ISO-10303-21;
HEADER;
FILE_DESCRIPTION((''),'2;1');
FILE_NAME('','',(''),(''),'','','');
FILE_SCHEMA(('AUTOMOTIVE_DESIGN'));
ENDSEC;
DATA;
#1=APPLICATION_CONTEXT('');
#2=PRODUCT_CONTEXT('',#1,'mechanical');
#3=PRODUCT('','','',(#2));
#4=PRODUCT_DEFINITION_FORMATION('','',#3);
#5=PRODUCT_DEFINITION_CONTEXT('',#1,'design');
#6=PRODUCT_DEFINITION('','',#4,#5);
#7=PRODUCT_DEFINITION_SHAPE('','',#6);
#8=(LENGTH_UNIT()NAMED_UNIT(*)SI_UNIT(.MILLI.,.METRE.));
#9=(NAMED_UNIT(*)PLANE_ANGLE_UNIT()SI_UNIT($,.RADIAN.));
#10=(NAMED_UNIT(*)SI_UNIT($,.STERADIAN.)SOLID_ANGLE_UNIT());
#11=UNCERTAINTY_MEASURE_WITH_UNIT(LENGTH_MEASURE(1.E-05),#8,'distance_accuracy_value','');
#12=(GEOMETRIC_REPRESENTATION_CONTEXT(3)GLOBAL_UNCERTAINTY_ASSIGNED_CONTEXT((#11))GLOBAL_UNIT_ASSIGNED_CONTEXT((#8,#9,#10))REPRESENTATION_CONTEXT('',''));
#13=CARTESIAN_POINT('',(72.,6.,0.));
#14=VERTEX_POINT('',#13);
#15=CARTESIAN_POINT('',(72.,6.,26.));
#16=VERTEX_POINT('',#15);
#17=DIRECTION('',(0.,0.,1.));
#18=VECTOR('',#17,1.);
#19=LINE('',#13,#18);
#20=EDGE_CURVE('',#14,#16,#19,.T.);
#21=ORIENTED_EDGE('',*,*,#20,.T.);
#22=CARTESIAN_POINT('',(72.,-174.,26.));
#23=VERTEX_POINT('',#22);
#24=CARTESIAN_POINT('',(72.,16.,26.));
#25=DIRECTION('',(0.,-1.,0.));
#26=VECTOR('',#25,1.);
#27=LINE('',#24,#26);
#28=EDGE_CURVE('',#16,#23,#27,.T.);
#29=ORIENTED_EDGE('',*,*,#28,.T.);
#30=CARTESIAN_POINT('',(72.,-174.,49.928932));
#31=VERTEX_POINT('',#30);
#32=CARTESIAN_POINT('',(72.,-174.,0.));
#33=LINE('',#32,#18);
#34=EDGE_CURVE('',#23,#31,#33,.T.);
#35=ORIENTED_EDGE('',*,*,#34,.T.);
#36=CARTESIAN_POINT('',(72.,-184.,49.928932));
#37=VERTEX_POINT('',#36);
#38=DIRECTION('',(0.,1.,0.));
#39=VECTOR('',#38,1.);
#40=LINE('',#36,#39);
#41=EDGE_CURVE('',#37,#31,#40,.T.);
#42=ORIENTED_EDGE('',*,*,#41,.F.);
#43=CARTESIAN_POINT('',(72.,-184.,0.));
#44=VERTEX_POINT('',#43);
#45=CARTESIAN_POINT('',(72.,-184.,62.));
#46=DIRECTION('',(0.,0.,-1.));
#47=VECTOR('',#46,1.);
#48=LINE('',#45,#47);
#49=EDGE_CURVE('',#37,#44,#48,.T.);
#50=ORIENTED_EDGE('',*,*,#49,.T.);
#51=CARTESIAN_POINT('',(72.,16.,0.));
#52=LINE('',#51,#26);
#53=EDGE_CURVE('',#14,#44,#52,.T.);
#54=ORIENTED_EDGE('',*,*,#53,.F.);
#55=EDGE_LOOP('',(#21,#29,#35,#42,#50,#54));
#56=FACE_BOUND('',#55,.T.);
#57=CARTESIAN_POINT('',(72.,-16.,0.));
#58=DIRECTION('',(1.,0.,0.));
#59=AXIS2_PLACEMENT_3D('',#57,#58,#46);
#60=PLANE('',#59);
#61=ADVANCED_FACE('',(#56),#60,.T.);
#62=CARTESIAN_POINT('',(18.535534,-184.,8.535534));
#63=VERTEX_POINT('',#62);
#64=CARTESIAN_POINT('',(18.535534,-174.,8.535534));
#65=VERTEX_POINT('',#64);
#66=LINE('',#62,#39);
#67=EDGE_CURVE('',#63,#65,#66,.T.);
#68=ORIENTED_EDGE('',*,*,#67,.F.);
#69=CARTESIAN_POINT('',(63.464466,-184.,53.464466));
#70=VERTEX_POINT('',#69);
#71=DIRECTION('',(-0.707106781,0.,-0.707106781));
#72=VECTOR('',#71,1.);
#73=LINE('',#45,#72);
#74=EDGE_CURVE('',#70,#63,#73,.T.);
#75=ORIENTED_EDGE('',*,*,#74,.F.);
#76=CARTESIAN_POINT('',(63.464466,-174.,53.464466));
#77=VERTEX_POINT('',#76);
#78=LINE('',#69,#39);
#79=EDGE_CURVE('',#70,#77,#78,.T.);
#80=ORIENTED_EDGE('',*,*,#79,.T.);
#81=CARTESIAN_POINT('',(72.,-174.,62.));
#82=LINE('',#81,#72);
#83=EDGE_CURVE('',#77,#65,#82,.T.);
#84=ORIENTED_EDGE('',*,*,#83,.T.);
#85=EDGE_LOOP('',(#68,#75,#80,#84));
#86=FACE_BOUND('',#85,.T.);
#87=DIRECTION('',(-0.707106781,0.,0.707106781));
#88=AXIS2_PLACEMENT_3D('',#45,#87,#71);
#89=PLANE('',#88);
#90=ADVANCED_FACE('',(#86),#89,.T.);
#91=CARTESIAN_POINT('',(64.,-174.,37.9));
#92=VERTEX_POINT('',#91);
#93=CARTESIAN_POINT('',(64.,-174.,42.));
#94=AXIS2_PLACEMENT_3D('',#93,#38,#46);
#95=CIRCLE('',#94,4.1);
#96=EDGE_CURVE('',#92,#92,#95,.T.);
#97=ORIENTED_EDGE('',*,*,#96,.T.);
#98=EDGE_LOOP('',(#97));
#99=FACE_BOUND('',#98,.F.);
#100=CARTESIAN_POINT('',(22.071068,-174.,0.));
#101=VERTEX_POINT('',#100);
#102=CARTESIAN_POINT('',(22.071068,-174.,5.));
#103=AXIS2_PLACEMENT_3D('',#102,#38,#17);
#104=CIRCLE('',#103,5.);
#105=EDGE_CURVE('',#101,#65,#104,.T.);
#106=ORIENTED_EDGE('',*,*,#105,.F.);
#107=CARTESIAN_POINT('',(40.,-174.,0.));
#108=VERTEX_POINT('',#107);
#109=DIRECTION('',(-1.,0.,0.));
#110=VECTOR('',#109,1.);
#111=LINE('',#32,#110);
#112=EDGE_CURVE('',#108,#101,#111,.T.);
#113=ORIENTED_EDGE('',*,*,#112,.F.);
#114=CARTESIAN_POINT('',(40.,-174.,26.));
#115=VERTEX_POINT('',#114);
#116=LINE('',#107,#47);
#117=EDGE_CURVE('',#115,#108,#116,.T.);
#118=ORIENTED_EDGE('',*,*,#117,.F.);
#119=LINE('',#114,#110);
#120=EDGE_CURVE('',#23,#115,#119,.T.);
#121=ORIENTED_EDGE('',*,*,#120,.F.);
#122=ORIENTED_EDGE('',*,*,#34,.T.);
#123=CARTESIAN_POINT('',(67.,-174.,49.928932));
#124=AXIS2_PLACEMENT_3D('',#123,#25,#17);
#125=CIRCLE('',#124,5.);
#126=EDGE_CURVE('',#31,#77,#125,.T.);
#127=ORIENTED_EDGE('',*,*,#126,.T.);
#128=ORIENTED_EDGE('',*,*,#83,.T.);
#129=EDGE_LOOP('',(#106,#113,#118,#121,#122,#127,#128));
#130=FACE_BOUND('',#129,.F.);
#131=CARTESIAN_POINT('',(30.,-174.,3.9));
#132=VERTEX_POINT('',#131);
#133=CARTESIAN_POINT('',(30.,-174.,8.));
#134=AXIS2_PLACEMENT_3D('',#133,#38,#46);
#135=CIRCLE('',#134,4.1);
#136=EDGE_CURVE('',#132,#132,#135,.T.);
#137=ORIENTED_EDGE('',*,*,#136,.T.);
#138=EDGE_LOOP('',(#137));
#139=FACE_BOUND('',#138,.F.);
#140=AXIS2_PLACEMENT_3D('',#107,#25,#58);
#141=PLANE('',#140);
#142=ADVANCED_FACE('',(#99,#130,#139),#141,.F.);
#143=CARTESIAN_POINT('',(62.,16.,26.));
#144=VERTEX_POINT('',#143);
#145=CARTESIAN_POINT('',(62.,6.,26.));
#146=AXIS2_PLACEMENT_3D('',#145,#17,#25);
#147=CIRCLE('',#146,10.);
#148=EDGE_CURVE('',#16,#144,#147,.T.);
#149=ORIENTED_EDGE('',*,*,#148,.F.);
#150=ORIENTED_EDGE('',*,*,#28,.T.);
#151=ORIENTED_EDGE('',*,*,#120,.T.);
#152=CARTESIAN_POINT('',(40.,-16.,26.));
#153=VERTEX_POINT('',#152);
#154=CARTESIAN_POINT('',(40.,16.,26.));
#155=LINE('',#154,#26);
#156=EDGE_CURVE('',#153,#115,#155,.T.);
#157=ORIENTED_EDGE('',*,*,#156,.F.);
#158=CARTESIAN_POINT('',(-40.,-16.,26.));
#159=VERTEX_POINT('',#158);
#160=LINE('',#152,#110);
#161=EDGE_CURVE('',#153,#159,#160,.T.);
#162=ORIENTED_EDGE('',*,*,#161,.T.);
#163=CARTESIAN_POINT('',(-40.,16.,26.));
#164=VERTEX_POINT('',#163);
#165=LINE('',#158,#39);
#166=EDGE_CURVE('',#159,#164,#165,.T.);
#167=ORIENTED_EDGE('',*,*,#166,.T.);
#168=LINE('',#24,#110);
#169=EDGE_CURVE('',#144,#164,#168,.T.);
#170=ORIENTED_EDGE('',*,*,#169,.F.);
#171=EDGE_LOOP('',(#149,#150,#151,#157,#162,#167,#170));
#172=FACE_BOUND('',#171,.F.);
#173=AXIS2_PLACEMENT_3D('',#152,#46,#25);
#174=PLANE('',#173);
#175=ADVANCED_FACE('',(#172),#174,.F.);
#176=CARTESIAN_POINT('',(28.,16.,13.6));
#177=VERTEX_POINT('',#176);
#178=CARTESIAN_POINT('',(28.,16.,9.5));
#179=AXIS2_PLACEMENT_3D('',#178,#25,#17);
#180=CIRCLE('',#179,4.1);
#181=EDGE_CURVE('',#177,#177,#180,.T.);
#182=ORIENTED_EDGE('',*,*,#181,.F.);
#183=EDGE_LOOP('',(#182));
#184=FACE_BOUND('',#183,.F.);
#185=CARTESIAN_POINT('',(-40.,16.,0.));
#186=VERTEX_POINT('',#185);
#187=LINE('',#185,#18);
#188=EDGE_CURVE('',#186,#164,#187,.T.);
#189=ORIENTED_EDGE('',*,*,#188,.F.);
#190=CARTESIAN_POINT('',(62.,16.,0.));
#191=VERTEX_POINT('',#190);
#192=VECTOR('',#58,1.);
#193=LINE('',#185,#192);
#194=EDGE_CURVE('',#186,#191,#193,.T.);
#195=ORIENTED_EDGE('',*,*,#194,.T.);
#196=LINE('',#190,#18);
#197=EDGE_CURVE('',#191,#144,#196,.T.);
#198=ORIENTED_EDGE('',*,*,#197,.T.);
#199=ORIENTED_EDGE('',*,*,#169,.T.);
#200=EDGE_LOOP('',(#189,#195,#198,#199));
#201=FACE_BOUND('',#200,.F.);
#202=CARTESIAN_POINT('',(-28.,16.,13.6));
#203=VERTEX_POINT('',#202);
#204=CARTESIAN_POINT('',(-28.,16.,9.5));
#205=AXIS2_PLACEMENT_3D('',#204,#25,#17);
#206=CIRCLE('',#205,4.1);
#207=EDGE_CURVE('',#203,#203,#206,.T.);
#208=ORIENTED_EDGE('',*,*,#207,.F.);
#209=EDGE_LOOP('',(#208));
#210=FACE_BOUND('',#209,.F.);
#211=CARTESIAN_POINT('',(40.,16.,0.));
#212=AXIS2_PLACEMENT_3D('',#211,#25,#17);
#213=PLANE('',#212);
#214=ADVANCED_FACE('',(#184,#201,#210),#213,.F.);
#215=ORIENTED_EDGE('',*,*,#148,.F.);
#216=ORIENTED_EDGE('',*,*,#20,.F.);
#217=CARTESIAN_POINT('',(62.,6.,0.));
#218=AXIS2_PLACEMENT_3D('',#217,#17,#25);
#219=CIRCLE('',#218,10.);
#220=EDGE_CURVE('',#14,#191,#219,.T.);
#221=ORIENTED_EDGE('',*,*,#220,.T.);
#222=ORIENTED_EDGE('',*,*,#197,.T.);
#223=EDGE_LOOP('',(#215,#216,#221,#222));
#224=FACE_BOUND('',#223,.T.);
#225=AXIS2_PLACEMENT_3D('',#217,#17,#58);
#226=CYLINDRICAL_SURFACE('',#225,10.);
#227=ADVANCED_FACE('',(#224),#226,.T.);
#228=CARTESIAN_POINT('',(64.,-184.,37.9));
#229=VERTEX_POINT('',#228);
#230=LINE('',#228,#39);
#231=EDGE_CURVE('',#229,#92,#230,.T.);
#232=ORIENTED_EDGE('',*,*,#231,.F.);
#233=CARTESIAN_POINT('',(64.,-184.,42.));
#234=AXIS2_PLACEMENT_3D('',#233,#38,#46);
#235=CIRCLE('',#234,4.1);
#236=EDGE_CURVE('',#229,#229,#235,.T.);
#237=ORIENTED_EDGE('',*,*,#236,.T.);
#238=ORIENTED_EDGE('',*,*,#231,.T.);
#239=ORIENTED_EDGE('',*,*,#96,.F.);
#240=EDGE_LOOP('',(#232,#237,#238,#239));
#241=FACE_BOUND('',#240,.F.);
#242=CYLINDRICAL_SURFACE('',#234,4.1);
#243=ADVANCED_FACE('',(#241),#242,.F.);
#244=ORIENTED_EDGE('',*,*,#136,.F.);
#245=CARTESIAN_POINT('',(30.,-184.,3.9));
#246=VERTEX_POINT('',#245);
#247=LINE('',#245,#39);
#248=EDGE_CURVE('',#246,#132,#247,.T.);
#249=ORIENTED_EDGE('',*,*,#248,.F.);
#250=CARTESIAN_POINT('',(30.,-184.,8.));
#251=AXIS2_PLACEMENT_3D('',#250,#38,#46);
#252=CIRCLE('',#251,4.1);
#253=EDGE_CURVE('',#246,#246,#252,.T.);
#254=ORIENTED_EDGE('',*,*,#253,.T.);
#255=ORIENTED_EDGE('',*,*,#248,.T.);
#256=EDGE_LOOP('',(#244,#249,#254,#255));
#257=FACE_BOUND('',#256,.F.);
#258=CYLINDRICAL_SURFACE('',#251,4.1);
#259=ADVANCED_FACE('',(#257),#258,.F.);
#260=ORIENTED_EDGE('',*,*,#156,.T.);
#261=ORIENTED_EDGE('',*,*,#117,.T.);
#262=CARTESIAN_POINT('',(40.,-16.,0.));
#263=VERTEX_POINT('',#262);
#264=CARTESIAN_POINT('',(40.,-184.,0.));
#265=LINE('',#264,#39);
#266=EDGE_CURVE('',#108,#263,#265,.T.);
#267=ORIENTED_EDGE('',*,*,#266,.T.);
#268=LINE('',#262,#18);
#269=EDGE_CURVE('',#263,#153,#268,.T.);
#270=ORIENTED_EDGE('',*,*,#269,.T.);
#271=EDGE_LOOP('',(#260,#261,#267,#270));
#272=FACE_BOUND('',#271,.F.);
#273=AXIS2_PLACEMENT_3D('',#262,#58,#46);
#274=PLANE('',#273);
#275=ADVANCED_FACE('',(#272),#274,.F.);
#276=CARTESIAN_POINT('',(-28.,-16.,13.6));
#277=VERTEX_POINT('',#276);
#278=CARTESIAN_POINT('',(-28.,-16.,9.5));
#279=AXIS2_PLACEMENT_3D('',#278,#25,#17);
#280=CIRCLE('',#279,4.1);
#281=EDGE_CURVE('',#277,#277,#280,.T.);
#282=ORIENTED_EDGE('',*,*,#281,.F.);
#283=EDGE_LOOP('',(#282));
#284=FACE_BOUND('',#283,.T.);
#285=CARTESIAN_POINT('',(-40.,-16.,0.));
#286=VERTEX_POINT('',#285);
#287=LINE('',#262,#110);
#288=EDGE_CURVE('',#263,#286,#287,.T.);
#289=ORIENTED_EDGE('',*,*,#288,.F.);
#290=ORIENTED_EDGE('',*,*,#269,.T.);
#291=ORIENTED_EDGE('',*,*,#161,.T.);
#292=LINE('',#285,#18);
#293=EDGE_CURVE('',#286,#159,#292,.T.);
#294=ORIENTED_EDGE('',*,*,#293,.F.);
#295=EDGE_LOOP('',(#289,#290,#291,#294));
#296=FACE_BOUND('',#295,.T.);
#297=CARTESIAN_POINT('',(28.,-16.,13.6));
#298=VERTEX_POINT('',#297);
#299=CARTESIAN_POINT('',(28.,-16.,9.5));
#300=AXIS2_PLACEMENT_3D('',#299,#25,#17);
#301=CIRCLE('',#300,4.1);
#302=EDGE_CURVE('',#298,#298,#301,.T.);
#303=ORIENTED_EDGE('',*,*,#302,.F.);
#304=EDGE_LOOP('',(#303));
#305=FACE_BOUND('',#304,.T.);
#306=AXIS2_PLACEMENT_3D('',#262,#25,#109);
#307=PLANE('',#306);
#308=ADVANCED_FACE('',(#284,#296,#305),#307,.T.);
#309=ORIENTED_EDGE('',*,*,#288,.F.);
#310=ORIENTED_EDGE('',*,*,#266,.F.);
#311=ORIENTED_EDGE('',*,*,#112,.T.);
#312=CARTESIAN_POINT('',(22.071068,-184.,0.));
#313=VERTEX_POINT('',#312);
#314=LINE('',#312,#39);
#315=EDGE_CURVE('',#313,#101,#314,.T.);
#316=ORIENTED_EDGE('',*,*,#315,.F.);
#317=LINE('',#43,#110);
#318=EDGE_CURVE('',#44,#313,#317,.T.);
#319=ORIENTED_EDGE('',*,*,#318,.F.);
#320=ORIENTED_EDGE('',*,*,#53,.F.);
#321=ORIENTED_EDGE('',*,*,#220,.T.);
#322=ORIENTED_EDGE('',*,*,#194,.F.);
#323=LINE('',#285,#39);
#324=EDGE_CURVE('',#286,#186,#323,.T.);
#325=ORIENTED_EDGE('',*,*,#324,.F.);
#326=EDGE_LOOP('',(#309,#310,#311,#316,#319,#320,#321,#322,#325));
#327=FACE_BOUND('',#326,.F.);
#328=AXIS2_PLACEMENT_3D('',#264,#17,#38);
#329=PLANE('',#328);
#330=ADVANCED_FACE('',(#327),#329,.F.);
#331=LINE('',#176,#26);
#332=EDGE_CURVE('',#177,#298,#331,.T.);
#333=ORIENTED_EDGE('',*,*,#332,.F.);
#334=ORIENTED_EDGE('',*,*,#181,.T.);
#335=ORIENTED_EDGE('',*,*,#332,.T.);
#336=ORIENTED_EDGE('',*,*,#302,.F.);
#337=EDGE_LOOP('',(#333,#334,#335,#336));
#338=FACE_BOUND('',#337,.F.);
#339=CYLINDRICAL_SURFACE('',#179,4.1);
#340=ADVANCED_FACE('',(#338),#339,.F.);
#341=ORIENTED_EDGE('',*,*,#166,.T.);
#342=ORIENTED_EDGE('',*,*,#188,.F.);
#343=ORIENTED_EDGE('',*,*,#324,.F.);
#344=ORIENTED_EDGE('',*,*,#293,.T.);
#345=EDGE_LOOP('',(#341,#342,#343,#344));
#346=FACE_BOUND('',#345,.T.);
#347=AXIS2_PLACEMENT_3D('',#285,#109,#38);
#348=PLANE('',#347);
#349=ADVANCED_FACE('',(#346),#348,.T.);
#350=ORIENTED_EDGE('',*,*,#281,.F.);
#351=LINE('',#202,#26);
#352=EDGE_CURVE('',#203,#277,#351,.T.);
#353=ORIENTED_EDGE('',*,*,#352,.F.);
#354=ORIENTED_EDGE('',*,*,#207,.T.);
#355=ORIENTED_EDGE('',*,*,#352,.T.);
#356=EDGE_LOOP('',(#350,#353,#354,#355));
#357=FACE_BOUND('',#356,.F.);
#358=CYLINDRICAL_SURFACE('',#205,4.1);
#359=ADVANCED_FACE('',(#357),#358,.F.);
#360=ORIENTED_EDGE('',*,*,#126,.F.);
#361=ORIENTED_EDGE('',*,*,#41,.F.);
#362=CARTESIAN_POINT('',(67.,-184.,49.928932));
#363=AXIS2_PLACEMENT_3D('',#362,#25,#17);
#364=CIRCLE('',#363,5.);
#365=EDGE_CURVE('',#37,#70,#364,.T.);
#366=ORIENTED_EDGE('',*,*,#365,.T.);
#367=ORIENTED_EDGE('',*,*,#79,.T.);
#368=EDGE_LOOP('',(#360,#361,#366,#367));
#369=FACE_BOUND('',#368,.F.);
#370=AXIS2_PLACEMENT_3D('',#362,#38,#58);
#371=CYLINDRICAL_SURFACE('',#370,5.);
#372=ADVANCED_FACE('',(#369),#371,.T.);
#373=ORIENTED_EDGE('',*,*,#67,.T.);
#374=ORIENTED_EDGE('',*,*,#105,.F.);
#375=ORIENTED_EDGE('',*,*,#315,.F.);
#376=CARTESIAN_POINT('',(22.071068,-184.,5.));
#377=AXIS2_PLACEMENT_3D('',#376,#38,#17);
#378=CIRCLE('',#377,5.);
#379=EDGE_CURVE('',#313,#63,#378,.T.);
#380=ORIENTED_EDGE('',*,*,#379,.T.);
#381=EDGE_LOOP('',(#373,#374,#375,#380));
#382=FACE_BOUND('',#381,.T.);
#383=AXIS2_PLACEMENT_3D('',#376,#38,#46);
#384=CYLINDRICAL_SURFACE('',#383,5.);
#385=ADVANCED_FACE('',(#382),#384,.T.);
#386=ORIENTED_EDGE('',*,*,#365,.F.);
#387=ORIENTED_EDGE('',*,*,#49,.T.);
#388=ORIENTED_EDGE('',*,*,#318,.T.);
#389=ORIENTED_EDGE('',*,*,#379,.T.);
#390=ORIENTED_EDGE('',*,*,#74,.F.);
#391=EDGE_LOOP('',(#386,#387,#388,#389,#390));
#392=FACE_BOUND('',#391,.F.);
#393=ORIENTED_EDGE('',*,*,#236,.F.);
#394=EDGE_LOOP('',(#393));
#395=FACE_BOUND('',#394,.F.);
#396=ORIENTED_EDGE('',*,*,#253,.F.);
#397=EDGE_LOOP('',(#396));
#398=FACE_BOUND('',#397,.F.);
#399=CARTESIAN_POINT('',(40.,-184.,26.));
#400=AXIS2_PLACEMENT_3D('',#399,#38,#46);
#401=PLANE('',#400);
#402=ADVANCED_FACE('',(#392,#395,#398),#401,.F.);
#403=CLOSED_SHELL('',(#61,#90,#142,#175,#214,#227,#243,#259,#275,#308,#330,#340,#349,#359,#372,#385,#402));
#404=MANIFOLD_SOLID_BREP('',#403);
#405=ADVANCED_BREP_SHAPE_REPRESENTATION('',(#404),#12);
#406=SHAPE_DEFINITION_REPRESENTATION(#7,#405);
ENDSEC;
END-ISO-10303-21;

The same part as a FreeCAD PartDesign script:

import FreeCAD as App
import Part
import Sketcher

V = App.Vector


def edges_at(feature, points):
    """Names of the edges that pass closest to the given points."""
    edges = feature.Shape.Edges
    near = lambda p: min(range(len(edges)), key=lambda i: edges[i].distToShape(Part.Vertex(*p))[0])
    return sorted({f"Edge{near(p) + 1}" for p in points})

doc = App.newDocument("Part")
body = doc.addObject("PartDesign::Body", "Body")

sketch1 = body.newObject("Sketcher::SketchObject", "Sketch")
sketch1.AttachmentSupport = (doc.getObject("XY_Plane"), [""])
sketch1.MapMode = "FlatFace"
sketch1.addGeometry([
    Part.LineSegment(V(40, 16, 0), V(-40, 16, 0)),
    Part.LineSegment(V(-40, 16, 0), V(-40, -16, 0)),
    Part.LineSegment(V(-40, -16, 0), V(40, -16, 0)),
    Part.LineSegment(V(40, -16, 0), V(40, 16, 0)),
], False)
sketch1.addConstraint([
    Sketcher.Constraint("Coincident", 0, 2, 1, 1),
    Sketcher.Constraint("Coincident", 1, 2, 2, 1),
    Sketcher.Constraint("Coincident", 2, 2, 3, 1),
    Sketcher.Constraint("Coincident", 3, 2, 0, 1),
    Sketcher.Constraint("Horizontal", 0),
    Sketcher.Constraint("Vertical", 1),
    Sketcher.Constraint("Horizontal", 2),
    Sketcher.Constraint("Vertical", 3),
    Sketcher.Constraint("Symmetric", 0, 2, 2, 2, -1, 1),
    Sketcher.Constraint("DistanceX", 0, 2, 0, 1, 80.0),
    Sketcher.Constraint("DistanceY", 1, 2, 1, 1, 32.0),
])
pad1 = body.newObject("PartDesign::Pad", "Pad")
pad1.Profile = sketch1
pad1.Length = 26

sketch2 = body.newObject("Sketcher::SketchObject", "Sketch001")
sketch2.AttachmentSupport = (doc.getObject("XZ_Plane"), [""])
sketch2.MapMode = "FlatFace"
sketch2.AttachmentOffset = App.Placement(V(0, 0, -16), App.Rotation())
sketch2.addGeometry([
    Part.Circle(V(-28, 9.5, 0), V(0, 0, 1), 4.1),
    Part.Circle(V(28, 9.5, 0), V(0, 0, 1), 4.1),
], False)
sketch2.addConstraint([
    Sketcher.Constraint("Equal", 0, 1),
    Sketcher.Constraint("Symmetric", 0, 3, 1, 3, -2),
    Sketcher.Constraint("Diameter", 0, 8.2),
    Sketcher.Constraint("DistanceX", 0, 3, -1, 1, 28.0),
    Sketcher.Constraint("DistanceY", -1, 1, 0, 3, 9.5),
])
doc.recompute()
hole = body.newObject("PartDesign::Hole", "Hole")
hole.Profile = sketch2
hole.ThreadType = "None"
hole.Diameter = 8.2
hole.DepthType = "ThroughAll"
hole.Reversed = True

sketch3 = body.newObject("Sketcher::SketchObject", "Sketch002")
sketch3.AttachmentSupport = (doc.getObject("YZ_Plane"), [""])
sketch3.MapMode = "FlatFace"
sketch3.AttachmentOffset = App.Placement(V(0, 0, 40), App.Rotation())
sketch3.addGeometry([
    Part.LineSegment(V(-184, 0, 0), V(16, 0, 0)),
    Part.LineSegment(V(16, 0, 0), V(16, 26, 0)),
    Part.LineSegment(V(16, 26, 0), V(-184, 26, 0)),
    Part.LineSegment(V(-184, 26, 0), V(-184, 0, 0)),
], False)
sketch3.addConstraint([
    Sketcher.Constraint("Coincident", 0, 2, 1, 1),
    Sketcher.Constraint("Coincident", 1, 2, 2, 1),
    Sketcher.Constraint("Coincident", 2, 2, 3, 1),
    Sketcher.Constraint("Coincident", 3, 2, 0, 1),
    Sketcher.Constraint("Horizontal", 0),
    Sketcher.Constraint("Vertical", 1),
    Sketcher.Constraint("Horizontal", 2),
    Sketcher.Constraint("Vertical", 3),
    Sketcher.Constraint("PointOnObject", 0, 2, -1),
    Sketcher.Constraint("DistanceX", 0, 1, 0, 2, 200.0),
    Sketcher.Constraint("DistanceY", 1, 1, 1, 2, 26.0),
    Sketcher.Constraint("DistanceX", -1, 1, 0, 2, 16.0),
])
pad2 = body.newObject("PartDesign::Pad", "Pad001")
pad2.Profile = sketch3
pad2.Length = 32

sketch4 = body.newObject("Sketcher::SketchObject", "Sketch003")
sketch4.AttachmentSupport = (doc.getObject("XZ_Plane"), [""])
sketch4.MapMode = "FlatFace"
sketch4.AttachmentOffset = App.Placement(V(0, 0, 184), App.Rotation())
sketch4.addGeometry([
    Part.LineSegment(V(10, 0, 0), V(72, 0, 0)),
    Part.LineSegment(V(72, 0, 0), V(72, 62, 0)),
    Part.LineSegment(V(72, 62, 0), V(10, 0, 0)),
], False)
sketch4.addConstraint([
    Sketcher.Constraint("Coincident", 0, 2, 1, 1),
    Sketcher.Constraint("Coincident", 1, 2, 2, 1),
    Sketcher.Constraint("Coincident", 2, 2, 0, 1),
    Sketcher.Constraint("Horizontal", 0),
    Sketcher.Constraint("Vertical", 1),
    Sketcher.Constraint("PointOnObject", 0, 2, -1),
    Sketcher.Constraint("Equal", 0, 1),
    Sketcher.Constraint("DistanceX", 0, 1, 0, 2, 62.0),
    Sketcher.Constraint("DistanceX", -1, 1, 0, 2, 72.0),
])
pad3 = body.newObject("PartDesign::Pad", "Pad002")
pad3.Profile = sketch4
pad3.Length = 10
pad3.Reversed = True
doc.recompute()

fillet = body.newObject("PartDesign::Fillet", "Fillet")
fillet.Base = (pad3, edges_at(pad3, [(10, -179, 0), (72, -179, 62)]))
fillet.Radius = 5

sketch5 = body.newObject("Sketcher::SketchObject", "Sketch004")
sketch5.AttachmentSupport = (doc.getObject("XZ_Plane"), [""])
sketch5.MapMode = "FlatFace"
sketch5.AttachmentOffset = App.Placement(V(0, 0, 184), App.Rotation())
sketch5.addGeometry([
    Part.Circle(V(64, 42, 0), V(0, 0, 1), 4.1),
    Part.Circle(V(30, 8, 0), V(0, 0, 1), 4.1),
], False)
sketch5.addConstraint([
    Sketcher.Constraint("Equal", 0, 1),
    Sketcher.Constraint("Diameter", 0, 8.2),
    Sketcher.Constraint("DistanceX", -1, 1, 0, 3, 64.0),
    Sketcher.Constraint("DistanceY", -1, 1, 0, 3, 42.0),
    Sketcher.Constraint("DistanceX", -1, 1, 1, 3, 30.0),
    Sketcher.Constraint("DistanceY", -1, 1, 1, 3, 8.0),
])
doc.recompute()
hole2 = body.newObject("PartDesign::Hole", "Hole001")
hole2.Profile = sketch5
hole2.ThreadType = "None"
hole2.Diameter = 8.2
hole2.DepthType = "Dimension"
hole2.Depth = 20
hole2.DrillPoint = "Flat"
doc.recompute()

fillet2 = body.newObject("PartDesign::Fillet", "Fillet001")
fillet2.Base = (hole2, edges_at(hole2, [(72, 16, 13)]))
fillet2.Radius = 10

doc.recompute()
